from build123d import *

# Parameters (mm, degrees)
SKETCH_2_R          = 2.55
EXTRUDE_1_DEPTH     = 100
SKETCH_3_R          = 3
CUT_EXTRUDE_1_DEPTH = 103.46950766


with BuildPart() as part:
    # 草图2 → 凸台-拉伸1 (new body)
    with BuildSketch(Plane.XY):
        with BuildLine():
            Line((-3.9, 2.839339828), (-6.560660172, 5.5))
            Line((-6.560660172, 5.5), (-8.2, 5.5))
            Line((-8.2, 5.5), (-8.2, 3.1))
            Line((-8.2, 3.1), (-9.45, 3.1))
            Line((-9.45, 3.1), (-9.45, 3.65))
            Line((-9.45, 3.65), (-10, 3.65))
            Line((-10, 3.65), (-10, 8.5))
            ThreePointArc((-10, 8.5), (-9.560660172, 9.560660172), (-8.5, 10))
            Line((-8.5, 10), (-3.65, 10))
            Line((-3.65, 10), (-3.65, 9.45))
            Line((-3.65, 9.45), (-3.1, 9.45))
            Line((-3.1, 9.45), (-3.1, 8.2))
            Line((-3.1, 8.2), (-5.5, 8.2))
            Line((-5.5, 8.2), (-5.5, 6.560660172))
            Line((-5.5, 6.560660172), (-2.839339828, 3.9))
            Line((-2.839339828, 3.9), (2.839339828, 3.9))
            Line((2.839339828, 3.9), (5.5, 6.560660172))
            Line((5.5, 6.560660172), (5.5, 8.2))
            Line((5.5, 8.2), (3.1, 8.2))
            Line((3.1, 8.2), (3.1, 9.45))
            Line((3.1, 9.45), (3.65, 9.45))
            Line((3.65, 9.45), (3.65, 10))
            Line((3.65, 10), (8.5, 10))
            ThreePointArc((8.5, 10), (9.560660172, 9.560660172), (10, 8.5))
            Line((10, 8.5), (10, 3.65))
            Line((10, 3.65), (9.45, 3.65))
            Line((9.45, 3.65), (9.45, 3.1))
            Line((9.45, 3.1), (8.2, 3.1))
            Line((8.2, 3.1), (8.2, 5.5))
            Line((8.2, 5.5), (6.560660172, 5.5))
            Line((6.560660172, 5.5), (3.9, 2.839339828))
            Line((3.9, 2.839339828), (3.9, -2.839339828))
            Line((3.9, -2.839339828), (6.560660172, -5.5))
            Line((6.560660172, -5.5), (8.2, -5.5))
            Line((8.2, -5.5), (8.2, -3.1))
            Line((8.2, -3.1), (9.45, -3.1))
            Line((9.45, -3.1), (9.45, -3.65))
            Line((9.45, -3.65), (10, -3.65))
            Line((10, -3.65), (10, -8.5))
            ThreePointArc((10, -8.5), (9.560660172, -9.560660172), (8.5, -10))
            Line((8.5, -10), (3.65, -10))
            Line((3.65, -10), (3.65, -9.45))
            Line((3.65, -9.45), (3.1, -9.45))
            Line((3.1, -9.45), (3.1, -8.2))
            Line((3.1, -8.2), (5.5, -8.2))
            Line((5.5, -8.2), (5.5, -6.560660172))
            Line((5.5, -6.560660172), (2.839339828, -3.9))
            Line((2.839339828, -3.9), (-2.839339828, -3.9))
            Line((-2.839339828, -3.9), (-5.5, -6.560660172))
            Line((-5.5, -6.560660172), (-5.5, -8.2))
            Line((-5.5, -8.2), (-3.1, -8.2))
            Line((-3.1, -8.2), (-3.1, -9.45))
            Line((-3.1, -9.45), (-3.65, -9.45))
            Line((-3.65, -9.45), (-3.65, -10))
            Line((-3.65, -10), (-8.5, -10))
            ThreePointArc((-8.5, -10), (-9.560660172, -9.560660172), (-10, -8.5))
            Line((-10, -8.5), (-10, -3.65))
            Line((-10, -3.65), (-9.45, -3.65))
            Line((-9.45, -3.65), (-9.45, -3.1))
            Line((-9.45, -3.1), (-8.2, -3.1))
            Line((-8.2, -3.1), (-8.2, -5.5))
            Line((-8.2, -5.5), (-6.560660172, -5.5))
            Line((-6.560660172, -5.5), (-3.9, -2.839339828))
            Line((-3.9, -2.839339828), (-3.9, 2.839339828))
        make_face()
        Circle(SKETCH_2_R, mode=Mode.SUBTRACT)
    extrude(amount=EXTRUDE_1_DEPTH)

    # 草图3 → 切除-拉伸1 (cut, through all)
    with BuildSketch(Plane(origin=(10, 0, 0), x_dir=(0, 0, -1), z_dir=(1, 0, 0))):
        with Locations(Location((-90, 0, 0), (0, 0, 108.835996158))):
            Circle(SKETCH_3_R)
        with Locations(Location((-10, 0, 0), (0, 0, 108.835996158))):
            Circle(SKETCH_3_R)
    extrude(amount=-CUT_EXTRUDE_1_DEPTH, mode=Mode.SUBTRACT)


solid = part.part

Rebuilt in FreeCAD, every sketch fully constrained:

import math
import FreeCAD as App
import Part
import Sketcher

V = App.Vector
Q = App.Units.Quantity

doc = App.newDocument("Part")
params = doc.addObject("Spreadsheet::Sheet", "Params")
for row, (alias, value) in enumerate([
    ("sketch1_diameter", "5.1 mm"),
    ("sketch1_radius", "1.5 mm"),
    ("sketch1_width", "2.4 mm"),
    ("sketch1_width2", "1.25 mm"),
    ("sketch1_width3", "0.55 mm"),
    ("pad1_length", "100 mm"),
    ("sketch2_diameter", "6 mm"),
], start=1):
    params.set(f"A{row}", alias)
    params.set(f"B{row}", "=" + value)
    params.setAlias(f"B{row}", alias)

body = doc.addObject("PartDesign::Body", "Body")

# Sketch on XY plane
sketch1 = body.newObject("Sketcher::SketchObject", "Sketch")
sketch1.AttachmentSupport = (doc.getObject("XY_Plane"), [""])
sketch1.MapMode = "FlatFace"
sketch1.addGeometry([
    Part.LineSegment(V(-6.6, 5.5, 0), V(-3.9, 2.8, 0)),  # 0
    Part.LineSegment(V(-3.9, 2.8, 0), V(-3.9, -2.8, 0)),  # 1
    Part.LineSegment(V(-3.9, -2.8, 0), V(-6.6, -5.5, 0)),  # 2
    Part.LineSegment(V(-6.6, -5.5, 0), V(-8.2, -5.5, 0)),  # 3
    Part.LineSegment(V(-8.2, -5.5, 0), V(-8.2, -3.1, 0)),  # 4
    Part.LineSegment(V(-8.2, -3.1, 0), V(-9.4, -3.1, 0)),  # 5
    Part.LineSegment(V(-9.4, -3.1, 0), V(-9.4, -3.6, 0)),  # 6
    Part.LineSegment(V(-9.4, -3.6, 0), V(-10, -3.6, 0)),  # 7
    Part.LineSegment(V(-10, -3.6, 0), V(-10, -8.5, 0)),  # 8
    Part.ArcOfCircle(Part.Circle(V(-8.5, -8.5, 0), V(0, 0, 1), 1.5), math.radians(180), math.radians(270)),  # 9
    Part.LineSegment(V(-8.5, -10, 0), V(-3.6, -10, 0)),  # 10
    Part.LineSegment(V(-3.6, -10, 0), V(-3.6, -9.4, 0)),  # 11
    Part.LineSegment(V(-3.6, -9.4, 0), V(-3.1, -9.4, 0)),  # 12
    Part.LineSegment(V(-3.1, -9.4, 0), V(-3.1, -8.2, 0)),  # 13
    Part.LineSegment(V(-3.1, -8.2, 0), V(-5.5, -8.2, 0)),  # 14
    Part.LineSegment(V(-5.5, -8.2, 0), V(-5.5, -6.6, 0)),  # 15
    Part.LineSegment(V(-5.5, -6.6, 0), V(-2.8, -3.9, 0)),  # 16
    Part.LineSegment(V(-2.8, -3.9, 0), V(2.8, -3.9, 0)),  # 17
    Part.LineSegment(V(2.8, -3.9, 0), V(5.5, -6.6, 0)),  # 18
    Part.LineSegment(V(5.5, -6.6, 0), V(5.5, -8.2, 0)),  # 19
    Part.LineSegment(V(5.5, -8.2, 0), V(3.1, -8.2, 0)),  # 20
    Part.LineSegment(V(3.1, -8.2, 0), V(3.1, -9.4, 0)),  # 21
    Part.LineSegment(V(3.1, -9.4, 0), V(3.6, -9.4, 0)),  # 22
    Part.LineSegment(V(3.6, -9.4, 0), V(3.6, -10, 0)),  # 23
    Part.LineSegment(V(3.6, -10, 0), V(8.5, -10, 0)),  # 24
    Part.ArcOfCircle(Part.Circle(V(8.5, -8.5, 0), V(0, 0, 1), 1.5), math.radians(-90), math.radians(0)),  # 25
    Part.LineSegment(V(10, -8.5, 0), V(10, -3.6, 0)),  # 26
    Part.LineSegment(V(10, -3.6, 0), V(9.4, -3.6, 0)),  # 27
    Part.LineSegment(V(9.4, -3.6, 0), V(9.4, -3.1, 0)),  # 28
    Part.LineSegment(V(9.4, -3.1, 0), V(8.2, -3.1, 0)),  # 29
    Part.LineSegment(V(8.2, -3.1, 0), V(8.2, -5.5, 0)),  # 30
    Part.LineSegment(V(8.2, -5.5, 0), V(6.6, -5.5, 0)),  # 31
    Part.LineSegment(V(6.6, -5.5, 0), V(3.9, -2.8, 0)),  # 32
    Part.LineSegment(V(3.9, -2.8, 0), V(3.9, 2.8, 0)),  # 33
    Part.LineSegment(V(3.9, 2.8, 0), V(6.6, 5.5, 0)),  # 34
    Part.LineSegment(V(6.6, 5.5, 0), V(8.2, 5.5, 0)),  # 35
    Part.LineSegment(V(8.2, 5.5, 0), V(8.2, 3.1, 0)),  # 36
    Part.LineSegment(V(8.2, 3.1, 0), V(9.4, 3.1, 0)),  # 37
    Part.LineSegment(V(9.4, 3.1, 0), V(9.4, 3.6, 0)),  # 38
    Part.LineSegment(V(9.4, 3.6, 0), V(10, 3.6, 0)),  # 39
    Part.LineSegment(V(10, 3.6, 0), V(10, 8.5, 0)),  # 40
    Part.ArcOfCircle(Part.Circle(V(8.5, 8.5, 0), V(0, 0, 1), 1.5), math.radians(0), math.radians(90)),  # 41
    Part.LineSegment(V(8.5, 10, 0), V(3.6, 10, 0)),  # 42
    Part.LineSegment(V(3.6, 10, 0), V(3.6, 9.4, 0)),  # 43
    Part.LineSegment(V(3.6, 9.4, 0), V(3.1, 9.4, 0)),  # 44
    Part.LineSegment(V(3.1, 9.4, 0), V(3.1, 8.2, 0)),  # 45
    Part.LineSegment(V(3.1, 8.2, 0), V(5.5, 8.2, 0)),  # 46
    Part.LineSegment(V(5.5, 8.2, 0), V(5.5, 6.6, 0)),  # 47
    Part.LineSegment(V(5.5, 6.6, 0), V(2.8, 3.9, 0)),  # 48
    Part.LineSegment(V(2.8, 3.9, 0), V(-2.8, 3.9, 0)),  # 49
    Part.LineSegment(V(-2.8, 3.9, 0), V(-5.5, 6.6, 0)),  # 50
    Part.LineSegment(V(-5.5, 6.6, 0), V(-5.5, 8.2, 0)),  # 51
    Part.LineSegment(V(-5.5, 8.2, 0), V(-3.1, 8.2, 0)),  # 52
    Part.LineSegment(V(-3.1, 8.2, 0), V(-3.1, 9.4, 0)),  # 53
    Part.LineSegment(V(-3.1, 9.4, 0), V(-3.6, 9.4, 0)),  # 54
    Part.LineSegment(V(-3.6, 9.4, 0), V(-3.6, 10, 0)),  # 55
    Part.LineSegment(V(-3.6, 10, 0), V(-8.5, 10, 0)),  # 56
    Part.ArcOfCircle(Part.Circle(V(-8.5, 8.5, 0), V(0, 0, 1), 1.5), math.radians(90), math.radians(180)),  # 57
    Part.LineSegment(V(-10, 8.5, 0), V(-10, 3.6, 0)),  # 58
    Part.LineSegment(V(-10, 3.6, 0), V(-9.4, 3.6, 0)),  # 59
    Part.LineSegment(V(-9.4, 3.6, 0), V(-9.4, 3.1, 0)),  # 60
    Part.LineSegment(V(-9.4, 3.1, 0), V(-8.2, 3.1, 0)),  # 61
    Part.LineSegment(V(-8.2, 3.1, 0), V(-8.2, 5.5, 0)),  # 62
    Part.LineSegment(V(-8.2, 5.5, 0), V(-6.6, 5.5, 0)),  # 63
    Part.Circle(V(0, 0, 0), V(0, 0, 1), 2.5),  # 64
], False)
sketch1.addConstraint([
    Sketcher.Constraint("Coincident", 0, 2, 1, 1),
    Sketcher.Constraint("Coincident", 1, 2, 2, 1),
    Sketcher.Constraint("Coincident", 2, 2, 3, 1),
    Sketcher.Constraint("Coincident", 3, 2, 4, 1),
    Sketcher.Constraint("Coincident", 4, 2, 5, 1),
    Sketcher.Constraint("Coincident", 5, 2, 6, 1),
    Sketcher.Constraint("Coincident", 6, 2, 7, 1),
    Sketcher.Constraint("Coincident", 7, 2, 8, 1),
    Sketcher.Constraint("Tangent", 8, 2, 9, 1),
    Sketcher.Constraint("Tangent", 9, 2, 10, 1),
    Sketcher.Constraint("Coincident", 10, 2, 11, 1),
    Sketcher.Constraint("Coincident", 11, 2, 12, 1),
    Sketcher.Constraint("Coincident", 12, 2, 13, 1),
    Sketcher.Constraint("Coincident", 13, 2, 14, 1),
    Sketcher.Constraint("Coincident", 14, 2, 15, 1),
    Sketcher.Constraint("Coincident", 15, 2, 16, 1),
    Sketcher.Constraint("Coincident", 16, 2, 17, 1),
    Sketcher.Constraint("Coincident", 17, 2, 18, 1),
    Sketcher.Constraint("Coincident", 18, 2, 19, 1),
    Sketcher.Constraint("Coincident", 19, 2, 20, 1),
    Sketcher.Constraint("Coincident", 20, 2, 21, 1),
    Sketcher.Constraint("Coincident", 21, 2, 22, 1),
    Sketcher.Constraint("Coincident", 22, 2, 23, 1),
    Sketcher.Constraint("Coincident", 23, 2, 24, 1),
    Sketcher.Constraint("Tangent", 24, 2, 25, 1),
    Sketcher.Constraint("Tangent", 25, 2, 26, 1),
    Sketcher.Constraint("Coincident", 26, 2, 27, 1),
    Sketcher.Constraint("Coincident", 27, 2, 28, 1),
    Sketcher.Constraint("Coincident", 28, 2, 29, 1),
    Sketcher.Constraint("Coincident", 29, 2, 30, 1),
    Sketcher.Constraint("Coincident", 30, 2, 31, 1),
    Sketcher.Constraint("Coincident", 31, 2, 32, 1),
    Sketcher.Constraint("Coincident", 32, 2, 33, 1),
    Sketcher.Constraint("Coincident", 33, 2, 34, 1),
    Sketcher.Constraint("Coincident", 34, 2, 35, 1),
    Sketcher.Constraint("Coincident", 35, 2, 36, 1),
    Sketcher.Constraint("Coincident", 36, 2, 37, 1),
    Sketcher.Constraint("Coincident", 37, 2, 38, 1),
    Sketcher.Constraint("Coincident", 38, 2, 39, 1),
    Sketcher.Constraint("Coincident", 39, 2, 40, 1),
    Sketcher.Constraint("Tangent", 40, 2, 41, 1),
    Sketcher.Constraint("Tangent", 41, 2, 42, 1),
    Sketcher.Constraint("Coincident", 42, 2, 43, 1),
    Sketcher.Constraint("Coincident", 43, 2, 44, 1),
    Sketcher.Constraint("Coincident", 44, 2, 45, 1),
    Sketcher.Constraint("Coincident", 45, 2, 46, 1),
    Sketcher.Constraint("Coincident", 46, 2, 47, 1),
    Sketcher.Constraint("Coincident", 47, 2, 48, 1),
    Sketcher.Constraint("Coincident", 48, 2, 49, 1),
    Sketcher.Constraint("Coincident", 49, 2, 50, 1),
    Sketcher.Constraint("Coincident", 50, 2, 51, 1),
    Sketcher.Constraint("Coincident", 51, 2, 52, 1),
    Sketcher.Constraint("Coincident", 52, 2, 53, 1),
    Sketcher.Constraint("Coincident", 53, 2, 54, 1),
    Sketcher.Constraint("Coincident", 54, 2, 55, 1),
    Sketcher.Constraint("Coincident", 55, 2, 56, 1),
    Sketcher.Constraint("Tangent", 56, 2, 57, 1),
    Sketcher.Constraint("Tangent", 57, 2, 58, 1),
    Sketcher.Constraint("Coincident", 58, 2, 59, 1),
    Sketcher.Constraint("Coincident", 59, 2, 60, 1),
    Sketcher.Constraint("Coincident", 60, 2, 61, 1),
    Sketcher.Constraint("Coincident", 61, 2, 62, 1),
    Sketcher.Constraint("Coincident", 62, 2, 63, 1),
    Sketcher.Constraint("Coincident", 63, 2, 0, 1),
    Sketcher.Constraint("Vertical", 1),
    Sketcher.Constraint("Horizontal", 3),
    Sketcher.Constraint("Vertical", 4),
    Sketcher.Constraint("Horizontal", 5),
    Sketcher.Constraint("Vertical", 6),
    Sketcher.Constraint("Horizontal", 7),
    Sketcher.Constraint("Vertical", 8),
    Sketcher.Constraint("Horizontal", 10),
    Sketcher.Constraint("Vertical", 11),
    Sketcher.Constraint("Horizontal", 12),
    Sketcher.Constraint("Vertical", 13),
    Sketcher.Constraint("Horizontal", 14),
    Sketcher.Constraint("Vertical", 15),
    Sketcher.Constraint("Horizontal", 17),
    Sketcher.Constraint("Vertical", 19),
    Sketcher.Constraint("Horizontal", 20),
    Sketcher.Constraint("Vertical", 21),
    Sketcher.Constraint("Horizontal", 22),
    Sketcher.Constraint("Vertical", 23),
    Sketcher.Constraint("Horizontal", 24),
    Sketcher.Constraint("Vertical", 26),
    Sketcher.Constraint("Horizontal", 27),
    Sketcher.Constraint("Vertical", 28),
    Sketcher.Constraint("Horizontal", 29),
    Sketcher.Constraint("Vertical", 30),
    Sketcher.Constraint("Horizontal", 31),
    Sketcher.Constraint("Vertical", 33),
    Sketcher.Constraint("Horizontal", 35),
    Sketcher.Constraint("Vertical", 36),
    Sketcher.Constraint("Horizontal", 37),
    Sketcher.Constraint("Vertical", 38),
    Sketcher.Constraint("Horizontal", 39),
    Sketcher.Constraint("Vertical", 40),
    Sketcher.Constraint("Horizontal", 42),
    Sketcher.Constraint("Vertical", 43),
    Sketcher.Constraint("Horizontal", 44),
    Sketcher.Constraint("Vertical", 45),
    Sketcher.Constraint("Horizontal", 46),
    Sketcher.Constraint("Vertical", 47),
    Sketcher.Constraint("Horizontal", 49),
    Sketcher.Constraint("Vertical", 51),
    Sketcher.Constraint("Horizontal", 52),
    Sketcher.Constraint("Vertical", 53),
    Sketcher.Constraint("Horizontal", 54),
    Sketcher.Constraint("Vertical", 55),
    Sketcher.Constraint("Horizontal", 56),
    Sketcher.Constraint("Vertical", 58),
    Sketcher.Constraint("Horizontal", 59),
    Sketcher.Constraint("Vertical", 60),
    Sketcher.Constraint("Horizontal", 61),
    Sketcher.Constraint("Vertical", 62),
    Sketcher.Constraint("Horizontal", 63),
    Sketcher.Constraint("Coincident", 64, 3, -1, 1),
    Sketcher.Constraint("Equal", 9, 25),
    Sketcher.Constraint("Equal", 25, 41),
    Sketcher.Constraint("Equal", 41, 57),
    Sketcher.Constraint("Symmetric", 9, 3, 41, 3, -1, 1),
    Sketcher.Constraint("Symmetric", 25, 3, 57, 3, -1, 1),
    Sketcher.Constraint("Symmetric", 0, 2, 32, 2, -1, 1),
    Sketcher.Constraint("Symmetric", 2, 2, 34, 2, -1, 1),
    Sketcher.Constraint("Symmetric", 4, 2, 36, 2, -1, 1),
    Sketcher.Constraint("Symmetric", 6, 2, 38, 2, -1, 1),
    Sketcher.Constraint("Symmetric", 11, 2, 43, 2, -1, 1),
    Sketcher.Constraint("Symmetric", 13, 2, 45, 2, -1, 1),
    Sketcher.Constraint("Symmetric", 15, 2, 47, 2, -1, 1),
    Sketcher.Constraint("Symmetric", 16, 2, 48, 2, -1, 1),
    Sketcher.Constraint("Symmetric", 18, 2, 50, 2, -1, 1),
    Sketcher.Constraint("Symmetric", 20, 2, 52, 2, -1, 1),
    Sketcher.Constraint("Symmetric", 22, 2, 54, 2, -1, 1),
    Sketcher.Constraint("Symmetric", 27, 2, 59, 2, -1, 1),
    Sketcher.Constraint("Symmetric", 29, 2, 61, 2, -1, 1),
    Sketcher.Constraint("Symmetric", 31, 2, 63, 2, -1, 1),
    Sketcher.Constraint("Symmetric", 9, 3, 25, 3, -2),
    Sketcher.Constraint("Symmetric", 15, 2, 18, 2, -2),
    Sketcher.Constraint("Symmetric", 13, 2, 20, 2, -2),
    Sketcher.Constraint("Symmetric", 11, 2, 22, 2, -2),
    Sketcher.Constraint("Symmetric", 6, 2, 27, 2, -2),
    Sketcher.Constraint("Symmetric", 4, 2, 29, 2, -2),
    Sketcher.Constraint("Symmetric", 2, 2, 31, 2, -2),
    Sketcher.Constraint("Perpendicular", 0, 2),
    Sketcher.Constraint("Parallel", 2, 16),
    Sketcher.Constraint("Perpendicular", 16, 18),
    Sketcher.Constraint("Perpendicular", 32, 34),
    Sketcher.Constraint("Perpendicular", 48, 50),
    Sketcher.Constraint("Horizontal", 1, 2, 32, 2),
    Sketcher.Constraint("Equal", 7, 12),
    Sketcher.Constraint("Equal", 49, 1),
    Sketcher.Constraint("Equal", 52, 4),
    Sketcher.Constraint("Equal", 59, 6),
    Sketcher.Constraint("Equal", 56, 8),
    Sketcher.Constraint("Equal", 6, 11),
    Sketcher.Constraint("Equal", 61, 13),
    Sketcher.Constraint("Equal", 63, 15),
    Sketcher.Constraint("Equal", 2, 16),
    Sketcher.Constraint("Diameter", 64, Q("5.1 mm")),
    Sketcher.Constraint("Radius", 9, Q("1.5 mm")),
    Sketcher.Constraint("DistanceX", 14, 2, 14, 1, Q("2.4 mm")),
    Sketcher.Constraint("DistanceX", 7, 2, -1, 1, Q("10 mm")),
    Sketcher.Constraint("DistanceX", 5, 2, 5, 1, Q("1.25 mm")),
    Sketcher.Constraint("DistanceX", 7, 2, 7, 1, Q("0.55 mm")),
    Sketcher.Constraint("DistanceX", 10, 1, 10, 2, Q("4.85 mm")),
    Sketcher.Constraint("DistanceX", 0, 2, -1, 1, Q("3.9 mm")),
    Sketcher.Constraint("DistanceX", 3, 2, 3, 1, Q("1.63934 mm")),
])
sketch1.setExpression("Constraints[158]", "Params.sketch1_diameter")
sketch1.setExpression("Constraints[159]", "Params.sketch1_radius")
sketch1.setExpression("Constraints[160]", "Params.sketch1_width")
sketch1.setExpression("Constraints[162]", "Params.sketch1_width2")
sketch1.setExpression("Constraints[163]", "Params.sketch1_width3")
pad1 = body.newObject("PartDesign::Pad", "Pad")
pad1.Profile = sketch1
pad1.setExpression("Length", "Params.pad1_length")

# Sketch on YZ plane
sketch2 = body.newObject("Sketcher::SketchObject", "Sketch001")
sketch2.AttachmentSupport = (doc.getObject("YZ_Plane"), [""])
sketch2.MapMode = "FlatFace"
sketch2.AttachmentOffset = App.Placement(V(0, 0, 10), App.Rotation())
sketch2.addGeometry([
    Part.Circle(V(0, 90, 0), V(0, 0, 1), 3),
    Part.Circle(V(0, 10, 0), V(0, 0, 1), 3),
], False)
sketch2.addConstraint([
    Sketcher.Constraint("Equal", 0, 1),
    Sketcher.Constraint("PointOnObject", 0, 3, -2),
    Sketcher.Constraint("PointOnObject", 1, 3, -2),
    Sketcher.Constraint("Diameter", 0, Q("6 mm")),
    Sketcher.Constraint("DistanceY", -1, 1, 0, 3, Q("90 mm")),
    Sketcher.Constraint("DistanceY", -1, 1, 1, 3, Q("10 mm")),
])
sketch2.setExpression("Constraints[3]", "Params.sketch2_diameter")
pocket1 = body.newObject("PartDesign::Pocket", "Pocket")
pocket1.Profile = sketch2
pocket1.Type = "ThroughAll"

doc.recompute()
